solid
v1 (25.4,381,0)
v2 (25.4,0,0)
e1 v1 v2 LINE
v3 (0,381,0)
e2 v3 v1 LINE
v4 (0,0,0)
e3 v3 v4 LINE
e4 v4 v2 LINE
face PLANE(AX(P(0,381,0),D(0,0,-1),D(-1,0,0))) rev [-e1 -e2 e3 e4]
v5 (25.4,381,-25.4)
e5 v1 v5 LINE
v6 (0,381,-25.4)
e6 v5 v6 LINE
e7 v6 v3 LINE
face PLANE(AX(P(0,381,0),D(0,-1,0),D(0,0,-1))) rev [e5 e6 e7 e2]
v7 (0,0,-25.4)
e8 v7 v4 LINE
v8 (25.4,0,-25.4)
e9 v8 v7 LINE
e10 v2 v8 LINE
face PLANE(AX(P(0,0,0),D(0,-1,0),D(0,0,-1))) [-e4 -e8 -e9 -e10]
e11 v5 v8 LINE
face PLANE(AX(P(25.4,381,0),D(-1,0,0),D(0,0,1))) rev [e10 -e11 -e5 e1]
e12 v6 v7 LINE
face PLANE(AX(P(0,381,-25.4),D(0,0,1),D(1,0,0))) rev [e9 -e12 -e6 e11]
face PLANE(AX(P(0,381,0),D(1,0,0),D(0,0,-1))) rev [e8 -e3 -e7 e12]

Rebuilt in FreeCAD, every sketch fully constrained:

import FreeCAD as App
import Part
import Sketcher
Q = App.Units.Quantity

doc = App.newDocument("Part")
body = doc.addObject("PartDesign::Body", "Body")

sketch1 = doc.addObject("Sketcher::SketchObject", "Sketch")
body.addObject(sketch1)
sketch1.AttachmentSupport = (doc.XZ_Plane, [""])
sketch1.MapMode = "FlatFace"
sketch1.addGeometry([
    Part.LineSegment(App.Vector(0, -25, 0), App.Vector(0, 0, 0)),
    Part.LineSegment(App.Vector(0, 0, 0), App.Vector(25, 0, 0)),
    Part.LineSegment(App.Vector(25, 0, 0), App.Vector(25, -25, 0)),
    Part.LineSegment(App.Vector(25, -25, 0), App.Vector(0, -25, 0)),
], False)
sketch1.addConstraint([
    Sketcher.Constraint("Coincident", 0, 2, 1, 1),
    Sketcher.Constraint("Coincident", 1, 2, 2, 1),
    Sketcher.Constraint("Coincident", 2, 2, 3, 1),
    Sketcher.Constraint("Coincident", 3, 2, 0, 1),
    Sketcher.Constraint("Vertical", 0),
    Sketcher.Constraint("Horizontal", 1),
    Sketcher.Constraint("Vertical", 2),
    Sketcher.Constraint("Horizontal", 3),
    Sketcher.Constraint("Coincident", 0, 2, -1, 1),
    Sketcher.Constraint("Equal", 3, 0),
    Sketcher.Constraint("DistanceX", 1, 1, 1, 2, Q("1 in")),
])
pad1 = doc.addObject("PartDesign::Pad", "Pad")
body.addObject(pad1)
pad1.Profile = sketch1
pad1.Length = Q("15 in")
pad1.Reversed = True

doc.recompute()
